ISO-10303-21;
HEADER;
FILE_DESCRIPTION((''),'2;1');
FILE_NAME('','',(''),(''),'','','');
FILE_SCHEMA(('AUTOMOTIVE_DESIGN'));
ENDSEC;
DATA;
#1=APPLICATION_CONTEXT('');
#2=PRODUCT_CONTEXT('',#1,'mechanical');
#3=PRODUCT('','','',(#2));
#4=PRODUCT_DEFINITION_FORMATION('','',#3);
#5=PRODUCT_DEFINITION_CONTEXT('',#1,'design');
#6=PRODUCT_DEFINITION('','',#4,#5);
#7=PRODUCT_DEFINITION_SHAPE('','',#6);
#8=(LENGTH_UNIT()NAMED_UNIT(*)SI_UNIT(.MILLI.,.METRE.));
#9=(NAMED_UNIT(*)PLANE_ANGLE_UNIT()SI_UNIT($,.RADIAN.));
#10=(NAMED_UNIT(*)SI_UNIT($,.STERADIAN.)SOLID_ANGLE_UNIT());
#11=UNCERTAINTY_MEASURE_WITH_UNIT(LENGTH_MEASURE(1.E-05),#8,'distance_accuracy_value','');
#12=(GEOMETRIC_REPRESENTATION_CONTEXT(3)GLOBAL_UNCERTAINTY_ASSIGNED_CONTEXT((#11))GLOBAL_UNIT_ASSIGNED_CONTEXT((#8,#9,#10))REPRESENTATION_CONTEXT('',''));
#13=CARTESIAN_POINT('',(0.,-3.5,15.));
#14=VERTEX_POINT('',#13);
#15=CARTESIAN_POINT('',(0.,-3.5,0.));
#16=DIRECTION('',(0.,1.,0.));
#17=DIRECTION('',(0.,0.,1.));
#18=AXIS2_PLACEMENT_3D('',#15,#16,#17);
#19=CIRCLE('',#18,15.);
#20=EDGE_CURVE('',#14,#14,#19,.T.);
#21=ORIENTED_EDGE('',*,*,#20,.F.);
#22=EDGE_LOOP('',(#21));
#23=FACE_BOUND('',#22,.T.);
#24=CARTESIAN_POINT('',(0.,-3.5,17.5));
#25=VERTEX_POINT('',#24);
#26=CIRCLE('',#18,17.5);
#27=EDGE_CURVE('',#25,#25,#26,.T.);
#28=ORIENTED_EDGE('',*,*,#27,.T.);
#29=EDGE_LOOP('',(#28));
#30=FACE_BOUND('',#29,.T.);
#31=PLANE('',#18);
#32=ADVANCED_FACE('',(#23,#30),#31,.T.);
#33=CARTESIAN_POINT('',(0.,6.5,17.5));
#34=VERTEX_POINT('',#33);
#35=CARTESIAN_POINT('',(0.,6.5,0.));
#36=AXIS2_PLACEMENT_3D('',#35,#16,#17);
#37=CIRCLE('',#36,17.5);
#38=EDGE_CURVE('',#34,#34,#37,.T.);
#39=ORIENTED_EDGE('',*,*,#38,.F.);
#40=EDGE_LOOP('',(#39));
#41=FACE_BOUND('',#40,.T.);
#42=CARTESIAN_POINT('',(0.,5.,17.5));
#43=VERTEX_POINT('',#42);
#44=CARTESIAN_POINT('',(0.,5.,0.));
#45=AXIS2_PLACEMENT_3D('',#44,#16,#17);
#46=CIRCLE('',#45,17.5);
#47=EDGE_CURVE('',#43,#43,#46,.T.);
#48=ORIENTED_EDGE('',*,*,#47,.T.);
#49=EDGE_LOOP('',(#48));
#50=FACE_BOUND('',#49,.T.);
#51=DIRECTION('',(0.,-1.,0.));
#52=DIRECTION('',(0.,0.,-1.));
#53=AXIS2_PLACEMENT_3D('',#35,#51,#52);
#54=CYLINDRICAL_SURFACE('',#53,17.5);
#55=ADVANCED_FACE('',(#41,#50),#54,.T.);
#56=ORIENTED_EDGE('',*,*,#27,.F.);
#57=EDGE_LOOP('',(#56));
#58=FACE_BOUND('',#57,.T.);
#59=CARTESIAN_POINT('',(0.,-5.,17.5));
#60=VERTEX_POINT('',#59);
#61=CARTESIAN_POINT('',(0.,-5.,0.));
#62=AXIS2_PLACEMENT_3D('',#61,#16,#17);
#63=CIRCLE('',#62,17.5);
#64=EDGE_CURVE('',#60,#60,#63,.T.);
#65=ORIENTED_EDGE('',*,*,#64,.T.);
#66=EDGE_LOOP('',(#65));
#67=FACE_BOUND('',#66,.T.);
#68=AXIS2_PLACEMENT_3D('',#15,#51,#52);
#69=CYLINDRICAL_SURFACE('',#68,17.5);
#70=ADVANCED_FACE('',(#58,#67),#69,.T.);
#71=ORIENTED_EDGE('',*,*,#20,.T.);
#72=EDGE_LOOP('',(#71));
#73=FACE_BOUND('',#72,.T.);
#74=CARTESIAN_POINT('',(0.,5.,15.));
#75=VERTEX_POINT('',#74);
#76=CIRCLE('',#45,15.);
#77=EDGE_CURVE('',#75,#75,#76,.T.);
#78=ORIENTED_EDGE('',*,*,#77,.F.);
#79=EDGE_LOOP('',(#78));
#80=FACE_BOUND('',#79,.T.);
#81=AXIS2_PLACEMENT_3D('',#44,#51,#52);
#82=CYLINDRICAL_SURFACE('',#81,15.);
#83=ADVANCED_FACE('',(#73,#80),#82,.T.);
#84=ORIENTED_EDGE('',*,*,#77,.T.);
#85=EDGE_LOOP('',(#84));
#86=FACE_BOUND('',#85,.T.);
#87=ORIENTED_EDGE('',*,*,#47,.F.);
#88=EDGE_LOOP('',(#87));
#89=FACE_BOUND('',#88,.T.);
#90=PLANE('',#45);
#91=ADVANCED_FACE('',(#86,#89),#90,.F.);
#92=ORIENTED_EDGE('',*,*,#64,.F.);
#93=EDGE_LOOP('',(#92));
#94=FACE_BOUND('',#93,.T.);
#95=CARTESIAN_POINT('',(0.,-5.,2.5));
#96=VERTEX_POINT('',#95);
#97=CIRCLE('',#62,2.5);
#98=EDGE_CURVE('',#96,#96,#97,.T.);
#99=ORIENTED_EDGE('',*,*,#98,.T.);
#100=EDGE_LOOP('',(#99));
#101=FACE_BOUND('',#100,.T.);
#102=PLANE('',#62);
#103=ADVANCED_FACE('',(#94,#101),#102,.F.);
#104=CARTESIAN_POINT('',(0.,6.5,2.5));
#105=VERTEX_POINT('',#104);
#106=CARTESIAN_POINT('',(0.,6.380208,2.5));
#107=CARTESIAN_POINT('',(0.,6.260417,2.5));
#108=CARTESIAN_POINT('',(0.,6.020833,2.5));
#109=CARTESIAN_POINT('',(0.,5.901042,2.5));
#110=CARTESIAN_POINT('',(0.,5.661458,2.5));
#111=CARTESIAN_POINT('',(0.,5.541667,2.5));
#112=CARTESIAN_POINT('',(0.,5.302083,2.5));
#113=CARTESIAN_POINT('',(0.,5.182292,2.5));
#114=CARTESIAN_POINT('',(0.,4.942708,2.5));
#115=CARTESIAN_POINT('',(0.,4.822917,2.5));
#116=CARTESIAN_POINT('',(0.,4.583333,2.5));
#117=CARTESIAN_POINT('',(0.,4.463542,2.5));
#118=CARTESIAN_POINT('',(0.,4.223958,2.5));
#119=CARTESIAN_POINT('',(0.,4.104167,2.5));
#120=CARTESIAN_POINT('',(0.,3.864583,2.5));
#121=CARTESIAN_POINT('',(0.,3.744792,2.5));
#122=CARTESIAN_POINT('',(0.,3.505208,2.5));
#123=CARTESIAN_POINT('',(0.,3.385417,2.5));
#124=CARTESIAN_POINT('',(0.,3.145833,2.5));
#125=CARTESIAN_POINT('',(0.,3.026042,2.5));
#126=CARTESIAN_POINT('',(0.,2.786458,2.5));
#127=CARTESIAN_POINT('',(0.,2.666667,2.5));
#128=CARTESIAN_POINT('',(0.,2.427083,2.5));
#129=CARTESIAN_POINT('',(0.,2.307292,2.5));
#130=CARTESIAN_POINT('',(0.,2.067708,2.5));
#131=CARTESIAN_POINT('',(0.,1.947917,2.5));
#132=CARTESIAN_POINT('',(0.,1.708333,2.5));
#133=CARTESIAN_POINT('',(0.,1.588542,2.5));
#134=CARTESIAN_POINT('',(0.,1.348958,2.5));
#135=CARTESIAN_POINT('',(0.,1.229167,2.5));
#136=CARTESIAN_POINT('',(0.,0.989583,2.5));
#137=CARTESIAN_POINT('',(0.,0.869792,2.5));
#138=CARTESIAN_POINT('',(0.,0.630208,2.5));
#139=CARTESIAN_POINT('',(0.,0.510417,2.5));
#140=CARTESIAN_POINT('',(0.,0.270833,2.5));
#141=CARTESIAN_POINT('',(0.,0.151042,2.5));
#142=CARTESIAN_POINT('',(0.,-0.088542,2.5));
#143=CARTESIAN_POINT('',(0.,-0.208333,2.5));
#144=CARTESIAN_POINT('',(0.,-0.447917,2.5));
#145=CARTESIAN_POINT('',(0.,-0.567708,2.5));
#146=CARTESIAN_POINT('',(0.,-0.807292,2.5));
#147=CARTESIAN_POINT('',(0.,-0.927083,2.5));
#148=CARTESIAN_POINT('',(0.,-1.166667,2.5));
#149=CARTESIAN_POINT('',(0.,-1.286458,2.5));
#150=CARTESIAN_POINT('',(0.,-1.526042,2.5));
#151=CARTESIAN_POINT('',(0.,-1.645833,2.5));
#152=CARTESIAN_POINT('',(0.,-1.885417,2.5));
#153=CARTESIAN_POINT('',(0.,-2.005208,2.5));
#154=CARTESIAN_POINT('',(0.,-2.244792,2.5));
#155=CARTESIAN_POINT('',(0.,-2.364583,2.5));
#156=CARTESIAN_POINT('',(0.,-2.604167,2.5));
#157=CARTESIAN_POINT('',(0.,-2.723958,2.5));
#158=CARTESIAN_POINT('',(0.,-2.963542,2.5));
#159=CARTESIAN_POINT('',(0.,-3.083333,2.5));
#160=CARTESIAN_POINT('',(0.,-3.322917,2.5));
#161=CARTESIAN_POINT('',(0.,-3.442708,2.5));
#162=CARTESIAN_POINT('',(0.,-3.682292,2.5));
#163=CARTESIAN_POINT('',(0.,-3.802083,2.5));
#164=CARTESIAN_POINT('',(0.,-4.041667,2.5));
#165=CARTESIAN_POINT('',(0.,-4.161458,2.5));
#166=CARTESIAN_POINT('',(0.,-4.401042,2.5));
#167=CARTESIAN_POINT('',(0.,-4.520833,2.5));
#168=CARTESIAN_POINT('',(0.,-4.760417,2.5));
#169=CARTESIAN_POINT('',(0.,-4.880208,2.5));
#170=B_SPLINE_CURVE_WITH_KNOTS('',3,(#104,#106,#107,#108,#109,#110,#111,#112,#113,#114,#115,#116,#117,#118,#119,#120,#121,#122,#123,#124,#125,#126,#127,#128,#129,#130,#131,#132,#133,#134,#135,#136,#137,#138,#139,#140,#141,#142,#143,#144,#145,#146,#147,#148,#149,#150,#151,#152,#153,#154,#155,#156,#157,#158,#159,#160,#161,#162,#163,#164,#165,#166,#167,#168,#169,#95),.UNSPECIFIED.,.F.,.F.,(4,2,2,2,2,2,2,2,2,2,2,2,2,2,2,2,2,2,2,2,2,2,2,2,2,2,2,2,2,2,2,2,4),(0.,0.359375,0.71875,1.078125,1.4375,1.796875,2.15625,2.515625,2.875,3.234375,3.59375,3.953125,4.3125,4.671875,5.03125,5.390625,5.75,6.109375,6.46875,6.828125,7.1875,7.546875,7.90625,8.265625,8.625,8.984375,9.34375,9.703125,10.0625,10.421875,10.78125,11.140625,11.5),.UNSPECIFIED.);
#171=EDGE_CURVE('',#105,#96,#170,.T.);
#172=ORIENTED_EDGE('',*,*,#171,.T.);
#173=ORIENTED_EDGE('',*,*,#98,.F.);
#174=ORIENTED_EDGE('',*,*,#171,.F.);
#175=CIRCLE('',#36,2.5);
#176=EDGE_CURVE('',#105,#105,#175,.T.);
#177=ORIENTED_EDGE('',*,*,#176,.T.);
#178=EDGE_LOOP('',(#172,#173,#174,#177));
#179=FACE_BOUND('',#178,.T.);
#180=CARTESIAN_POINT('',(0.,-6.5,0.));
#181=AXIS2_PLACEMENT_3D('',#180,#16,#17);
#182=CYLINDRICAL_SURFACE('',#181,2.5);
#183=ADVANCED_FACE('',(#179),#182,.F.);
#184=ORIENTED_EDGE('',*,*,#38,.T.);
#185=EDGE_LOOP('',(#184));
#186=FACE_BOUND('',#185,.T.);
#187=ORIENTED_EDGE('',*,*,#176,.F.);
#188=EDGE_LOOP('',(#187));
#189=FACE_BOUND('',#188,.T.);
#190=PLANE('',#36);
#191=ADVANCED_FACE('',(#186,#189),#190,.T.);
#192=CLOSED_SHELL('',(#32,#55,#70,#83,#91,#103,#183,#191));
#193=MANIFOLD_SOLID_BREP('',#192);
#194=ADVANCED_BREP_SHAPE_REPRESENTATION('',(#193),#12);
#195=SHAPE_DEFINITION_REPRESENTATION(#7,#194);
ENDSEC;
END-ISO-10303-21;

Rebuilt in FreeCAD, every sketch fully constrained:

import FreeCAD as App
import Part
import Sketcher

V = App.Vector
Q = App.Units.Quantity

doc = App.newDocument("Part")
body = doc.addObject("PartDesign::Body", "Body")

# Sketch on XZ plane
sketch1 = doc.addObject("Sketcher::SketchObject", "Sketch")
body.addObject(sketch1)
sketch1.AttachmentSupport = (doc.XZ_Plane, [""])
sketch1.MapMode = "FlatFace"
sketch1.addGeometry(Part.Circle(V(0, 0, 0), V(0, 0, 1), 15), False)
sketch1.addConstraint([
    Sketcher.Constraint("Coincident", 0, 3, -1, 1),
    Sketcher.Constraint("Diameter", 0, Q("30 mm")),
])
pad1 = doc.addObject("PartDesign::Pad", "Pad")
body.addObject(pad1)
pad1.Profile = sketch1
pad1.Length = 10
pad1.Midplane = True

# Sketch on XZ plane
sketch2 = doc.addObject("Sketcher::SketchObject", "Sketch001")
body.addObject(sketch2)
sketch2.AttachmentSupport = (doc.XZ_Plane, [""])
sketch2.MapMode = "FlatFace"
sketch2.AttachmentOffset = App.Placement(V(0, 0, -5), App.Rotation())
sketch2.addGeometry(Part.Circle(V(0, 0, 0), V(0, 0, 1), 18), False)
sketch2.addConstraint([
    Sketcher.Constraint("Coincident", 0, 3, -1, 1),
    Sketcher.Constraint("Diameter", 0, Q("35 mm")),
])
pad2 = doc.addObject("PartDesign::Pad", "Pad001")
body.addObject(pad2)
pad2.Profile = sketch2
pad2.Length = 1.5
pad2.Reversed = True

# Sketch on XZ plane
sketch3 = doc.addObject("Sketcher::SketchObject", "Sketch002")
body.addObject(sketch3)
sketch3.AttachmentSupport = (doc.XZ_Plane, [""])
sketch3.MapMode = "FlatFace"
sketch3.AttachmentOffset = App.Placement(V(0, 0, 5), App.Rotation())
sketch3.addGeometry(Part.Circle(V(0, 0, 0), V(0, 0, 1), 18), False)
sketch3.addConstraint([
    Sketcher.Constraint("Coincident", 0, 3, -1, 1),
    Sketcher.Constraint("Diameter", 0, Q("35 mm")),
])
pad3 = doc.addObject("PartDesign::Pad", "Pad002")
body.addObject(pad3)
pad3.Profile = sketch3
pad3.Length = 1.5
pad3.Reversed = True

# Sketch on XZ plane
sketch4 = doc.addObject("Sketcher::SketchObject", "Sketch003")
body.addObject(sketch4)
sketch4.AttachmentSupport = (doc.XZ_Plane, [""])
sketch4.MapMode = "FlatFace"
sketch4.addGeometry(Part.Circle(V(0, 0, 0), V(0, 0, 1), 2.5), False)
sketch4.addConstraint([
    Sketcher.Constraint("Coincident", 0, 3, -1, 1),
    Sketcher.Constraint("Diameter", 0, Q("5 mm")),
])
pocket1 = doc.addObject("PartDesign::Pocket", "Pocket")
body.addObject(pocket1)
pocket1.Profile = sketch4
pocket1.Length = 13
pocket1.Midplane = True

doc.recompute()
